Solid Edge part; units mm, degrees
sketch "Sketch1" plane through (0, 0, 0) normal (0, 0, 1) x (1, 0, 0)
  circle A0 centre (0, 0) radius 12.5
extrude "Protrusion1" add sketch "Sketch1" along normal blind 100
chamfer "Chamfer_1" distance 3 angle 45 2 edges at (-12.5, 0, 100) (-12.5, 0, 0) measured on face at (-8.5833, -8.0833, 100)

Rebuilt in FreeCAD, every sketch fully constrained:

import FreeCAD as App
import Part
import Sketcher

V = App.Vector
Q = App.Units.Quantity


def edges_at(feature, points):
    """Names of the edges that pass closest to the given points."""
    edges = feature.Shape.Edges
    near = lambda p: min(range(len(edges)), key=lambda i: edges[i].distToShape(Part.Vertex(*p))[0])
    return sorted({f"Edge{near(p) + 1}" for p in points})

doc = App.newDocument("Part")
body = doc.addObject("PartDesign::Body", "Body")

# Sketch on XY plane
sketch1 = doc.addObject("Sketcher::SketchObject", "Sketch")
body.addObject(sketch1)
sketch1.AttachmentSupport = (doc.XY_Plane, [""])
sketch1.MapMode = "FlatFace"
sketch1.addGeometry(Part.Circle(V(0, 0, 0), V(0, 0, 1), 12.5), False)
sketch1.addConstraint(Sketcher.Constraint("Coincident", 0, 3, -1, 1))
sketch1.addConstraint(Sketcher.Constraint("Diameter", 0, Q("25 mm")))
pad1 = doc.addObject("PartDesign::Pad", "Pad")
body.addObject(pad1)
pad1.Profile = sketch1
pad1.Length = 100
doc.recompute()

chamfer = doc.addObject("PartDesign::Chamfer", "Chamfer")
body.addObject(chamfer)
chamfer.Base = (pad1, edges_at(pad1, [(-12.5, 0, 100), (-12.5, 0, 0)]))
chamfer.Size = 3

doc.recompute()
